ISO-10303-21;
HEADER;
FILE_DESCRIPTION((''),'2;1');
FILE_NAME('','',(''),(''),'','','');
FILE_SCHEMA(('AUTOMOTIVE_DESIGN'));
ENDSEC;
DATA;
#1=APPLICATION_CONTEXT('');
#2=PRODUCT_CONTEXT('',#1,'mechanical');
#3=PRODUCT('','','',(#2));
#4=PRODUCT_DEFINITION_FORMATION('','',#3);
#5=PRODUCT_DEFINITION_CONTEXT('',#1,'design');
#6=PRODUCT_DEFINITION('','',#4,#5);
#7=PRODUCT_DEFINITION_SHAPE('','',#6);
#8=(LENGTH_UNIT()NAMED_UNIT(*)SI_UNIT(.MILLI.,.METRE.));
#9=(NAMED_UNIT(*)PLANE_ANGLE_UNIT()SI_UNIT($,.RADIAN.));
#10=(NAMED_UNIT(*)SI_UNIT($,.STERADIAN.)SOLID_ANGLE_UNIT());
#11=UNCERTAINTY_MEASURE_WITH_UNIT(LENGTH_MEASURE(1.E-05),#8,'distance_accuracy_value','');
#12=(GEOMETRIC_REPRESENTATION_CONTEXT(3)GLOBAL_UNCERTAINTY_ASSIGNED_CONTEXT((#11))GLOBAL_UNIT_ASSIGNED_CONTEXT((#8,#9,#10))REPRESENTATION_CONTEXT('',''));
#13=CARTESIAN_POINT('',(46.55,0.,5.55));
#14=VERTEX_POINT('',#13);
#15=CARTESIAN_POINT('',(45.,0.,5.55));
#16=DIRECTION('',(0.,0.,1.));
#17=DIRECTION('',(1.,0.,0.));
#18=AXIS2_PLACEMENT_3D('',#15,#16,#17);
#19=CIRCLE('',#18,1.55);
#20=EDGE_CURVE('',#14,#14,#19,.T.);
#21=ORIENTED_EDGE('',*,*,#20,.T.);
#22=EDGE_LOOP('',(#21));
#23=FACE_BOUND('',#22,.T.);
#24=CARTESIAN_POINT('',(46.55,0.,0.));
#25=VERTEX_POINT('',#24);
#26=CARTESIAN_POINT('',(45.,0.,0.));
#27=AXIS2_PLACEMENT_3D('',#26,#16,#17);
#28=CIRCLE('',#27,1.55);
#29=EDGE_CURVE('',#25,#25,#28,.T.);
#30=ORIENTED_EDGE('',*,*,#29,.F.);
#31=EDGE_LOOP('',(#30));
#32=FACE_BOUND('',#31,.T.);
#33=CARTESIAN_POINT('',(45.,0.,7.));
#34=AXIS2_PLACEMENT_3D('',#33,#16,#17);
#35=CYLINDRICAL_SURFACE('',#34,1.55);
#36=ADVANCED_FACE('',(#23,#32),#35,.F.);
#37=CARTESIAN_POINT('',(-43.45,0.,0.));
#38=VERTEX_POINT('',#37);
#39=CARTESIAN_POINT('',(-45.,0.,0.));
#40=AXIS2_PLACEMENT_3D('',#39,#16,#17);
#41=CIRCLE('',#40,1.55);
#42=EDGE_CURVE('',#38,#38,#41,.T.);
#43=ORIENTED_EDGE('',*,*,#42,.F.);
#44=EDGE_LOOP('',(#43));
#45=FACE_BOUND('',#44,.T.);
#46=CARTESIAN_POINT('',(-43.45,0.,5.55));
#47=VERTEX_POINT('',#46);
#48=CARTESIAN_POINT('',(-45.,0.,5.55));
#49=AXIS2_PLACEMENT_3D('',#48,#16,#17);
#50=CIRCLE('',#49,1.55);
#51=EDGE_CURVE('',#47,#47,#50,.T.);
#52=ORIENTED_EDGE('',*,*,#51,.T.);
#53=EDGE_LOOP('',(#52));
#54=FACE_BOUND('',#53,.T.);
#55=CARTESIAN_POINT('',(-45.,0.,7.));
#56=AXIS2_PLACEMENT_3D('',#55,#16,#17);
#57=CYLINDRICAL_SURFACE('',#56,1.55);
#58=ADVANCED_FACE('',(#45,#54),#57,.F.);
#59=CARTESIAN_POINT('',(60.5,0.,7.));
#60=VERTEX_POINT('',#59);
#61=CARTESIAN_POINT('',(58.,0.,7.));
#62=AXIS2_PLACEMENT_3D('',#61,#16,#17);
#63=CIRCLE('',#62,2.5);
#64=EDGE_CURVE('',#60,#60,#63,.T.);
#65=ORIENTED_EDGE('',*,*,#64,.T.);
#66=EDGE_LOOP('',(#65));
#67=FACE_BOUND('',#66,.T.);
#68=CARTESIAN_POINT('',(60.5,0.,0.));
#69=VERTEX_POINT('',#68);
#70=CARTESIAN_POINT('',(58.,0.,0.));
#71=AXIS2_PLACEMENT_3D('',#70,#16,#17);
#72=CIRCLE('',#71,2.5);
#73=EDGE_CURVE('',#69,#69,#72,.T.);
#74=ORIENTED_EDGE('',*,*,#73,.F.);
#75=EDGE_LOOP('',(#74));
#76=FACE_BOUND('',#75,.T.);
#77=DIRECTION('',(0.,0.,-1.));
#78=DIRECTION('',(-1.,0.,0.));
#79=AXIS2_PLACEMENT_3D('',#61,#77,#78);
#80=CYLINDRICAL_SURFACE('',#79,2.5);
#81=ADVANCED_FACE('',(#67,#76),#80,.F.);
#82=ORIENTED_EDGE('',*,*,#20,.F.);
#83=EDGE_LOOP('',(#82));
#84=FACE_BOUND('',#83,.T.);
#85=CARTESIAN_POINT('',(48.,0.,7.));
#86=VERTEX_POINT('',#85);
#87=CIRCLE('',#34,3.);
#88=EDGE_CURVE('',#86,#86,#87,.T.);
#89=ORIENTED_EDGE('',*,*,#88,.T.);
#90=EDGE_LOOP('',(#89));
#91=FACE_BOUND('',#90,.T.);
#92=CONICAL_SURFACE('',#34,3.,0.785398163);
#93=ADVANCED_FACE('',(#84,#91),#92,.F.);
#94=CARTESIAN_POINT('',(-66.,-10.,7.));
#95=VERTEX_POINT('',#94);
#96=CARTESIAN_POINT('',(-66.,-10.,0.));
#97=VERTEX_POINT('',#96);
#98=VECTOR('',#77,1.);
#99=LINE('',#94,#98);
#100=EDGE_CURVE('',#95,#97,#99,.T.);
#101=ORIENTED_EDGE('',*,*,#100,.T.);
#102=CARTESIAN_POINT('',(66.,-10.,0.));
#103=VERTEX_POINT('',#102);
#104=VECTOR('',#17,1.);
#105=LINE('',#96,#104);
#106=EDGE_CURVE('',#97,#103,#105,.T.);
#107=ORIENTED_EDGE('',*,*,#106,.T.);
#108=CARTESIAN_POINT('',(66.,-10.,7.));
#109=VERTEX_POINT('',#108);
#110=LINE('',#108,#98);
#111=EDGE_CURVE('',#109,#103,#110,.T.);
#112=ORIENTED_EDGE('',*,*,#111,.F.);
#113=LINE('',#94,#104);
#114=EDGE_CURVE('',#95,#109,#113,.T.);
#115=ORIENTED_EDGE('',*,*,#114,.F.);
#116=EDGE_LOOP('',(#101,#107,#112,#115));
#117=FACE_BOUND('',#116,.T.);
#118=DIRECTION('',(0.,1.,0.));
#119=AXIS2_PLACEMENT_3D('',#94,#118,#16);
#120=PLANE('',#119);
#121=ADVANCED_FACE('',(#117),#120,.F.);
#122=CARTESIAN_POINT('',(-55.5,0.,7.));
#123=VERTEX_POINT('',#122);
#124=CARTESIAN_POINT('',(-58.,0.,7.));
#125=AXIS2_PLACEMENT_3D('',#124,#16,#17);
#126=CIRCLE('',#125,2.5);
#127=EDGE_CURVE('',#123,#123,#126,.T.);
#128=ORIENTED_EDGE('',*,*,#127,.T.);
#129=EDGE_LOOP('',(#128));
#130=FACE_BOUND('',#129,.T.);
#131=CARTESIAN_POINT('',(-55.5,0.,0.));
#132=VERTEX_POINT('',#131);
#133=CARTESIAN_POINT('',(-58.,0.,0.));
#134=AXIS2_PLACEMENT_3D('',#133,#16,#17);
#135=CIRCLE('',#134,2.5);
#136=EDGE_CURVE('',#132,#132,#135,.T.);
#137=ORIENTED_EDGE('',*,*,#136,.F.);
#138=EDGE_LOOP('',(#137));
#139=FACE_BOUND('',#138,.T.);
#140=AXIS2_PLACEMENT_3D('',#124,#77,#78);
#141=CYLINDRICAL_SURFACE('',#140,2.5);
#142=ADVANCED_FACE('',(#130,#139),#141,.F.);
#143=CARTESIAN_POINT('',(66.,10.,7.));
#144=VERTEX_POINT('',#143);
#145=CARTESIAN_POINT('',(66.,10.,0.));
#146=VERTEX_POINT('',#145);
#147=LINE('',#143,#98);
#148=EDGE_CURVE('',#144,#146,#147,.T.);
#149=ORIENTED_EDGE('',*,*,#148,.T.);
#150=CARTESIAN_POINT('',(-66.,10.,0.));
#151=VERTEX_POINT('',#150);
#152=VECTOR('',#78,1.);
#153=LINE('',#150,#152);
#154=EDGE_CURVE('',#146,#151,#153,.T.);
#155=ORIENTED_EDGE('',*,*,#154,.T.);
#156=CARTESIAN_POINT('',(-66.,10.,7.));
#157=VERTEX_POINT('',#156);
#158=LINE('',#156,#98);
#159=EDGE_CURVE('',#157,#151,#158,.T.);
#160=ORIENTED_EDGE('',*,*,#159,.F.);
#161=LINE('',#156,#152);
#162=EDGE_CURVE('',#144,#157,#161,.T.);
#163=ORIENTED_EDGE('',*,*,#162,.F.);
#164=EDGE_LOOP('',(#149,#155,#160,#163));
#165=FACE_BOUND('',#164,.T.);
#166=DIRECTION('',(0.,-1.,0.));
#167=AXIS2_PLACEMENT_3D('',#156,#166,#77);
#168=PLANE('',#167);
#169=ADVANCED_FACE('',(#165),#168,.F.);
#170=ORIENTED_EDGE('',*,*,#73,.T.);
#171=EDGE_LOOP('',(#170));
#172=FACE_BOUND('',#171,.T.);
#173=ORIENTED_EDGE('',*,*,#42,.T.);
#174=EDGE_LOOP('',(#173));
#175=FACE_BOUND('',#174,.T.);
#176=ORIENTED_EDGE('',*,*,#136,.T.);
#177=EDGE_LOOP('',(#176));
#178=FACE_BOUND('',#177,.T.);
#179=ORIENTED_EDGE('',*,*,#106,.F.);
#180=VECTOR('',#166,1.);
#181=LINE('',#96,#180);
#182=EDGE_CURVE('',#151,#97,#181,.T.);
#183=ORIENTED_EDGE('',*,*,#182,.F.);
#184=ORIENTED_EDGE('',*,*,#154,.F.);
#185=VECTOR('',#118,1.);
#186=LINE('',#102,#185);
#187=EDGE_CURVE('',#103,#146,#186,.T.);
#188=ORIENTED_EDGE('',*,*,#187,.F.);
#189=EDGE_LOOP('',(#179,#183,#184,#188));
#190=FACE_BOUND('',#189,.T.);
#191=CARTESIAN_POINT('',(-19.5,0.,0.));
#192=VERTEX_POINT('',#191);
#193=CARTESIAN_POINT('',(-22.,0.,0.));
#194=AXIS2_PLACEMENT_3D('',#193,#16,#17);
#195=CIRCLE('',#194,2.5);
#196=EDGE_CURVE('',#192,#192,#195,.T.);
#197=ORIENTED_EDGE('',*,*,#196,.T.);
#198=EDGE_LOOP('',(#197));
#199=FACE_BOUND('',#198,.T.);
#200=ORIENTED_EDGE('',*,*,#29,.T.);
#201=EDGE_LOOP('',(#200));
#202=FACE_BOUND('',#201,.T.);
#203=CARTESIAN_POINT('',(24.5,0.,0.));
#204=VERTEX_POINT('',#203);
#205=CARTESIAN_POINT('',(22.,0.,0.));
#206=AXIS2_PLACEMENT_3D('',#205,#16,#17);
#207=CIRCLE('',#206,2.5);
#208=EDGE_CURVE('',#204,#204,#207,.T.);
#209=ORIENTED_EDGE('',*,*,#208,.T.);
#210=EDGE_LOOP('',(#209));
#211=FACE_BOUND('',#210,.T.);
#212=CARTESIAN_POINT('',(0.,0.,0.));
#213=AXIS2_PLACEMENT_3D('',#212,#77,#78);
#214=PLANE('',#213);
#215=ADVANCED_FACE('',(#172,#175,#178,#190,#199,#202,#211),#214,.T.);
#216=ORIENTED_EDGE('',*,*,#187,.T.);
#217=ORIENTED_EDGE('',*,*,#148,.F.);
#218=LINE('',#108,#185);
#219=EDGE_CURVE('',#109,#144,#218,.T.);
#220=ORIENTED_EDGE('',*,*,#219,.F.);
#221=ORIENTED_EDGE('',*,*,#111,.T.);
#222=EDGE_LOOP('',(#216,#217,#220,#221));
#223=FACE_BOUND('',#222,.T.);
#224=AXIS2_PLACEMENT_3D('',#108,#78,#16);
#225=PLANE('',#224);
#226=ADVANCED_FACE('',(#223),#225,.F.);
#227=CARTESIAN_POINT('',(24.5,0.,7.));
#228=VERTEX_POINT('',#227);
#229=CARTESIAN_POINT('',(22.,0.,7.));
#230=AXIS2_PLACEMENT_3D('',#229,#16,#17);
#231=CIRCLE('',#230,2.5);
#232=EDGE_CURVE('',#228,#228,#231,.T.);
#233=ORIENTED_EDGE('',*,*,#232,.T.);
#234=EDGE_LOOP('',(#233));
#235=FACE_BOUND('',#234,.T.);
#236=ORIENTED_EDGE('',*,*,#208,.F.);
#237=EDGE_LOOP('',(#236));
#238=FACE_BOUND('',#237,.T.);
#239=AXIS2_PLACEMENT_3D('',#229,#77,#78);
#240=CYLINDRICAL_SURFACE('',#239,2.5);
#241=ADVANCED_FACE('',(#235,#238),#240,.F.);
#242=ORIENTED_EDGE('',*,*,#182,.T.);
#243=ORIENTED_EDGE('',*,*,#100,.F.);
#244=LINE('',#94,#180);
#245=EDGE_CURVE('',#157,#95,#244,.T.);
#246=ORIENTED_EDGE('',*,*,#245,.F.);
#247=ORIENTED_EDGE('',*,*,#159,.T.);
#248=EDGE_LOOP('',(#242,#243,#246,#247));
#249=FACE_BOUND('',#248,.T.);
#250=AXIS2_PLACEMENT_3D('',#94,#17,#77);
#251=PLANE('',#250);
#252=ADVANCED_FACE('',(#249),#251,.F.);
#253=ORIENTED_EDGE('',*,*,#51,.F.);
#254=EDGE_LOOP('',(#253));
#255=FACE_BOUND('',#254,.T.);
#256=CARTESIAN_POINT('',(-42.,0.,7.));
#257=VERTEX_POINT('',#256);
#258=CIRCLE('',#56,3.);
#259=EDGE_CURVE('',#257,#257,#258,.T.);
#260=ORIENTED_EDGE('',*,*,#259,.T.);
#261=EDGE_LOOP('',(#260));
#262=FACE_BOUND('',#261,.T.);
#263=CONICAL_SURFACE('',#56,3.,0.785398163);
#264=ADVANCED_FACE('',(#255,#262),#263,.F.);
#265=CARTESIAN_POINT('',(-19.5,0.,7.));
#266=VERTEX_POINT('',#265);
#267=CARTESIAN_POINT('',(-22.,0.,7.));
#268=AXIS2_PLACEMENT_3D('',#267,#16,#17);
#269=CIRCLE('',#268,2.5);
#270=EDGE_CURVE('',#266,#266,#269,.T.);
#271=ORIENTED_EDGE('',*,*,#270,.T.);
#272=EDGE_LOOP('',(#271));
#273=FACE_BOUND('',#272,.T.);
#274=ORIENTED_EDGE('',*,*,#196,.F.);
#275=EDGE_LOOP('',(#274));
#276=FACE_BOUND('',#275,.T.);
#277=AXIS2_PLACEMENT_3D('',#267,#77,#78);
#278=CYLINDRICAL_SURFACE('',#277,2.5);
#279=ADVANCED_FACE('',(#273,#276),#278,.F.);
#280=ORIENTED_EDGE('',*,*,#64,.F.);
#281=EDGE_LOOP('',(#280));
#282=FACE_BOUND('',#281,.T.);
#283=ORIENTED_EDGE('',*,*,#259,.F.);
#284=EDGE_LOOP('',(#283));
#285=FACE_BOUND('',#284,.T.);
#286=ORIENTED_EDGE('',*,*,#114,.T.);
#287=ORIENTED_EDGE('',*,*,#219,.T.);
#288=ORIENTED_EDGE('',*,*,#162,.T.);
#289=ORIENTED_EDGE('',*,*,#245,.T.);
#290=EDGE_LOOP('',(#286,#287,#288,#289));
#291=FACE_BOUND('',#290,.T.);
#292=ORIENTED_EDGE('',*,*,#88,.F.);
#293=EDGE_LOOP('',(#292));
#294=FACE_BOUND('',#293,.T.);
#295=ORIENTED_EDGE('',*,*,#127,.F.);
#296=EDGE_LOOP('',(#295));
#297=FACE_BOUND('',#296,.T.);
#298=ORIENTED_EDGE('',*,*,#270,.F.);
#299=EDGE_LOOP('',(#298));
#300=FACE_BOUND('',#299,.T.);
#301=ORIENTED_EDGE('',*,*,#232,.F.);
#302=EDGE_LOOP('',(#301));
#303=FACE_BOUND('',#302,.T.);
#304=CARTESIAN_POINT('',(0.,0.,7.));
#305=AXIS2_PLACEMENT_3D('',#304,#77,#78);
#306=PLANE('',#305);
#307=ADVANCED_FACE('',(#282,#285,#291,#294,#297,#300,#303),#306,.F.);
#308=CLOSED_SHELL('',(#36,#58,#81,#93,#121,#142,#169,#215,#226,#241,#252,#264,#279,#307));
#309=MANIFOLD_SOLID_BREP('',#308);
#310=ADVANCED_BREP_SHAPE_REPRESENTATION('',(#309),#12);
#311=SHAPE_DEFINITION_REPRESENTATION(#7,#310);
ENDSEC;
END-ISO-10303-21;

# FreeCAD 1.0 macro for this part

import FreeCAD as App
import Part
import Sketcher
from FreeCAD import Vector

doc = App.newDocument("Part")
params = doc.addObject("Spreadsheet::Sheet", "Params")
for row, (alias, value) in enumerate([
    ("sketch1_diameter", "5 mm"),
    ("sketch1_diameter2", "3 mm"),
    ("sketch1_width", "132 mm"),
    ("sketch1_height", "20 mm"),
    ("pad1_length", "7 mm"),
    ("sketch2_diameter", "3.1 mm"),
    ("hole_diameter", "3.1 mm"),
    ("hole_csink_diameter", "6 mm"),
], start=1):
    params.set(f"A{row}", alias)
    params.set(f"B{row}", "=" + value)
    params.setAlias(f"B{row}", alias)

body = doc.addObject("PartDesign::Body", "Body")

sketch1 = doc.addObject("Sketcher::SketchObject", "Sketch")
body.addObject(sketch1)
sketch1.AttachmentSupport = (doc.XY_Plane, [""])
sketch1.MapMode = "FlatFace"
sketch1.addGeometry([
    Part.LineSegment(Vector(-66, 10, 0), Vector(-66, -10, 0)),
    Part.LineSegment(Vector(-66, -10, 0), Vector(66, -10, 0)),
    Part.LineSegment(Vector(66, -10, 0), Vector(66, 10, 0)),
    Part.LineSegment(Vector(66, 10, 0), Vector(-66, 10, 0)),
    Part.Circle(Vector(-58, 0, 0), Vector(0, 0, 1), 2.5),
    Part.Circle(Vector(-45, 0, 0), Vector(0, 0, 1), 1.5),
    Part.Circle(Vector(-22, 0, 0), Vector(0, 0, 1), 2.5),
    Part.Circle(Vector(22, 0, 0), Vector(0, 0, 1), 2.5),
    Part.Circle(Vector(45, 0, 0), Vector(0, 0, 1), 1.5),
    Part.Circle(Vector(58, 0, 0), Vector(0, 0, 1), 2.5),
], False)
sketch1.addConstraint([
    Sketcher.Constraint("Coincident", 0, 2, 1, 1),
    Sketcher.Constraint("Coincident", 1, 2, 2, 1),
    Sketcher.Constraint("Coincident", 2, 2, 3, 1),
    Sketcher.Constraint("Coincident", 3, 2, 0, 1),
    Sketcher.Constraint("Vertical", 0),
    Sketcher.Constraint("Horizontal", 1),
    Sketcher.Constraint("Vertical", 2),
    Sketcher.Constraint("Horizontal", 3),
    Sketcher.Constraint("Equal", 4, 6),
    Sketcher.Constraint("Equal", 6, 7),
    Sketcher.Constraint("Equal", 5, 8),
    Sketcher.Constraint("Equal", 7, 9),
    Sketcher.Constraint("Symmetric", 6, 3, 7, 3, -1, 1),
    Sketcher.Constraint("Symmetric", 5, 3, 8, 3, -1, 1),
    Sketcher.Constraint("Symmetric", 4, 3, 9, 3, -1, 1),
    Sketcher.Constraint("Symmetric", 0, 2, 2, 2, -1, 1),
    Sketcher.Constraint("PointOnObject", 4, 3, -1),
    Sketcher.Constraint("PointOnObject", 5, 3, -1),
    Sketcher.Constraint("PointOnObject", 6, 3, -1),
    Sketcher.Constraint("Diameter", 4, 5.0),
    Sketcher.Constraint("Diameter", 5, 3.0),
    Sketcher.Constraint("DistanceX", 1, 1, 1, 2, 132.0),
    Sketcher.Constraint("DistanceY", 0, 2, 0, 1, 20.0),
    Sketcher.Constraint("DistanceX", 4, 3, -1, 1, 58.0),
    Sketcher.Constraint("DistanceX", 5, 3, -1, 1, 45.0),
    Sketcher.Constraint("DistanceX", 6, 3, -1, 1, 22.0),
])
sketch1.setExpression("Constraints[19]", "Params.sketch1_diameter")
sketch1.setExpression("Constraints[20]", "Params.sketch1_diameter2")
sketch1.setExpression("Constraints[21]", "Params.sketch1_width")
sketch1.setExpression("Constraints[22]", "Params.sketch1_height")
pad1 = doc.addObject("PartDesign::Pad", "Pad")
body.addObject(pad1)
pad1.Profile = sketch1
pad1.setExpression("Length", "Params.pad1_length")

sketch2 = doc.addObject("Sketcher::SketchObject", "Sketch001")
body.addObject(sketch2)
sketch2.AttachmentSupport = (doc.XY_Plane, [""])
sketch2.MapMode = "FlatFace"
sketch2.AttachmentOffset = App.Placement(Vector(0, 0, 7), App.Rotation())
sketch2.addGeometry([
    Part.Circle(Vector(-45, 0, 0), Vector(0, 0, 1), 1.55),
    Part.Circle(Vector(45, 0, 0), Vector(0, 0, 1), 1.55),
], False)
sketch2.addConstraint([
    Sketcher.Constraint("Equal", 0, 1),
    Sketcher.Constraint("Symmetric", 0, 3, 1, 3, -1, 1),
    Sketcher.Constraint("PointOnObject", 0, 3, -1),
    Sketcher.Constraint("Diameter", 0, 3.1),
    Sketcher.Constraint("DistanceX", 0, 3, -1, 1, 45.0),
])
sketch2.setExpression("Constraints[3]", "Params.sketch2_diameter")
doc.recompute()
hole = doc.addObject("PartDesign::Hole", "Hole")
body.addObject(hole)
hole.Profile = sketch2
hole.ThreadType = "None"
hole.setExpression("Diameter", "Params.hole_diameter")
hole.DepthType = "ThroughAll"
hole.HoleCutType = "Countersink"
hole.setExpression("HoleCutDiameter", "Params.hole_csink_diameter")
hole.HoleCutCountersinkAngle = 90

doc.recompute()
